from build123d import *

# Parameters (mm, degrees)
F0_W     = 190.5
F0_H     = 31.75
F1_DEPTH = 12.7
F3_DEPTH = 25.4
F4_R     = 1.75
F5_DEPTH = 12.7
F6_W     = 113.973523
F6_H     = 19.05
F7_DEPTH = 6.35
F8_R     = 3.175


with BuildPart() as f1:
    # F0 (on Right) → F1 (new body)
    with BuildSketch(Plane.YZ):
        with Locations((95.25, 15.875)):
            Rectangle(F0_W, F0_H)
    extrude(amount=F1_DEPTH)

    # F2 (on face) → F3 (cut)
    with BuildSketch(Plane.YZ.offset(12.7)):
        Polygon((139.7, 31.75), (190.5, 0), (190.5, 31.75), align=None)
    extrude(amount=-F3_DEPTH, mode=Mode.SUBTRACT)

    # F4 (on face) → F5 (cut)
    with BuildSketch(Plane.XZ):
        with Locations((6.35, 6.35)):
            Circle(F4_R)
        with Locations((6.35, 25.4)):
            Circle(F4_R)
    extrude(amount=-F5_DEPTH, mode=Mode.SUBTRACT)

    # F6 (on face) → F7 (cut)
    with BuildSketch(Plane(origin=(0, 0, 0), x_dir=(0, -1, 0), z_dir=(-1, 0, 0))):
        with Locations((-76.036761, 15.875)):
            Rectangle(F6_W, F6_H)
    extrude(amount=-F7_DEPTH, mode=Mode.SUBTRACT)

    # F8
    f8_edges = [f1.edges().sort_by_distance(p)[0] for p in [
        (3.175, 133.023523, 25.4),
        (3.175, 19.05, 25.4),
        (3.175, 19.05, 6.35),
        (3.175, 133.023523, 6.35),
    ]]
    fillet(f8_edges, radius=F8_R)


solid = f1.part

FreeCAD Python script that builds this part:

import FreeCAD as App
import Part
import Sketcher

V = App.Vector
Q = App.Units.Quantity


def edges_at(feature, points):
    """Names of the edges that pass closest to the given points."""
    edges = feature.Shape.Edges
    near = lambda p: min(range(len(edges)), key=lambda i: edges[i].distToShape(Part.Vertex(*p))[0])
    return sorted({f"Edge{near(p) + 1}" for p in points})

doc = App.newDocument("Part")
body = doc.addObject("PartDesign::Body", "Body")

sketch1 = body.newObject("Sketcher::SketchObject", "Sketch")
sketch1.AttachmentSupport = (doc.getObject("YZ_Plane"), [""])
sketch1.MapMode = "FlatFace"
sketch1.addGeometry(Part.LineSegment(V(0, 32, 0), V(0, 0, 0)), False)
sketch1.addGeometry(Part.LineSegment(V(0, 0, 0), V(190, 0, 0)), False)
sketch1.addGeometry(Part.LineSegment(V(190, 0, 0), V(190, 32, 0)), False)
sketch1.addGeometry(Part.LineSegment(V(190, 32, 0), V(0, 32, 0)), False)
sketch1.addConstraint(Sketcher.Constraint("Coincident", 0, 2, 1, 1))
sketch1.addConstraint(Sketcher.Constraint("Coincident", 1, 2, 2, 1))
sketch1.addConstraint(Sketcher.Constraint("Coincident", 2, 2, 3, 1))
sketch1.addConstraint(Sketcher.Constraint("Coincident", 3, 2, 0, 1))
sketch1.addConstraint(Sketcher.Constraint("Vertical", 0))
sketch1.addConstraint(Sketcher.Constraint("Horizontal", 1))
sketch1.addConstraint(Sketcher.Constraint("Vertical", 2))
sketch1.addConstraint(Sketcher.Constraint("Horizontal", 3))
sketch1.addConstraint(Sketcher.Constraint("Coincident", 0, 2, -1, 1))
sketch1.addConstraint(Sketcher.Constraint("DistanceX", 1, 1, 1, 2, Q("7.5 in")))
sketch1.addConstraint(Sketcher.Constraint("DistanceY", 0, 2, 0, 1, Q("1.25 in")))
pad1 = body.newObject("PartDesign::Pad", "Pad")
pad1.Profile = sketch1
pad1.Length = Q("0.5 in")

sketch2 = body.newObject("Sketcher::SketchObject", "Sketch001")
sketch2.AttachmentSupport = (doc.getObject("YZ_Plane"), [""])
sketch2.MapMode = "FlatFace"
sketch2.AttachmentOffset = App.Placement(V(0, 0, 0.5 * 25.4), App.Rotation())
sketch2.addGeometry(Part.LineSegment(V(140, 32, 0), V(190, 0, 0)), False)
sketch2.addGeometry(Part.LineSegment(V(190, 0, 0), V(190, 32, 0)), False)
sketch2.addGeometry(Part.LineSegment(V(190, 32, 0), V(140, 32, 0)), False)
sketch2.addConstraint(Sketcher.Constraint("Coincident", 0, 2, 1, 1))
sketch2.addConstraint(Sketcher.Constraint("Coincident", 1, 2, 2, 1))
sketch2.addConstraint(Sketcher.Constraint("Coincident", 2, 2, 0, 1))
sketch2.addConstraint(Sketcher.Constraint("Vertical", 1))
sketch2.addConstraint(Sketcher.Constraint("Horizontal", 2))
sketch2.addConstraint(Sketcher.Constraint("PointOnObject", 0, 2, -1))
sketch2.addConstraint(Sketcher.Constraint("DistanceX", 2, 2, 2, 1, Q("2 in")))
sketch2.addConstraint(Sketcher.Constraint("DistanceY", 1, 1, 1, 2, Q("1.25 in")))
sketch2.addConstraint(Sketcher.Constraint("DistanceX", -1, 1, 0, 2, Q("7.5 in")))
pocket1 = body.newObject("PartDesign::Pocket", "Pocket")
pocket1.Profile = sketch2
pocket1.Length = Q("1 in")

sketch3 = body.newObject("Sketcher::SketchObject", "Sketch002")
sketch3.AttachmentSupport = (doc.getObject("XZ_Plane"), [""])
sketch3.MapMode = "FlatFace"
sketch3.addGeometry(Part.Circle(V(6.3, 6.3, 0), V(0, 0, 1), 1.8), False)
sketch3.addGeometry(Part.Circle(V(6.3, 25.4, 0), V(0, 0, 1), 1.8), False)
sketch3.addConstraint(Sketcher.Constraint("Equal", 0, 1))
sketch3.addConstraint(Sketcher.Constraint("Vertical", 0, 3, 1, 3))
sketch3.addConstraint(Sketcher.Constraint("DistanceY", -1, 1, 1, 3, Q("1 in")))
sketch3.addConstraint(Sketcher.Constraint("Diameter", 0, 3.5))
sketch3.addConstraint(Sketcher.Constraint("DistanceX", -1, 1, 0, 3, Q("0.25 in")))
sketch3.addConstraint(Sketcher.Constraint("DistanceY", -1, 1, 0, 3, Q("0.25 in")))
pocket2 = body.newObject("PartDesign::Pocket", "Pocket001")
pocket2.Profile = sketch3
pocket2.Length = Q("0.5 in")

sketch4 = body.newObject("Sketcher::SketchObject", "Sketch003")
sketch4.AttachmentSupport = (doc.getObject("YZ_Plane"), [""])
sketch4.MapMode = "FlatFace"
sketch4.addGeometry(Part.LineSegment(V(133, 25, 0), V(133, 6, 0)), False)
sketch4.addGeometry(Part.LineSegment(V(133, 6, 0), V(19, 6, 0)), False)
sketch4.addGeometry(Part.LineSegment(V(19, 6, 0), V(19, 25, 0)), False)
sketch4.addGeometry(Part.LineSegment(V(19, 25, 0), V(133, 25, 0)), False)
sketch4.addConstraint(Sketcher.Constraint("Coincident", 0, 2, 1, 1))
sketch4.addConstraint(Sketcher.Constraint("Coincident", 1, 2, 2, 1))
sketch4.addConstraint(Sketcher.Constraint("Coincident", 2, 2, 3, 1))
sketch4.addConstraint(Sketcher.Constraint("Coincident", 3, 2, 0, 1))
sketch4.addConstraint(Sketcher.Constraint("Vertical", 0))
sketch4.addConstraint(Sketcher.Constraint("Horizontal", 1))
sketch4.addConstraint(Sketcher.Constraint("Vertical", 2))
sketch4.addConstraint(Sketcher.Constraint("Horizontal", 3))
sketch4.addConstraint(Sketcher.Constraint("DistanceY", -1, 1, 2, 2, Q("1 in")))
sketch4.addConstraint(Sketcher.Constraint("DistanceY", 0, 2, 0, 1, Q("0.75 in")))
sketch4.addConstraint(Sketcher.Constraint("DistanceX", -1, 1, 1, 2, Q("0.75 in")))
sketch4.addConstraint(Sketcher.Constraint("DistanceX", 1, 2, 1, 1, 113.973523))
pocket3 = body.newObject("PartDesign::Pocket", "Pocket002")
pocket3.Profile = sketch4
pocket3.Length = Q("0.25 in")
pocket3.Reversed = True
doc.recompute()

fillet = body.newObject("PartDesign::Fillet", "Fillet")
fillet.Base = (pocket3, edges_at(pocket3, [
    (3.175, 133.024, 25.4),
    (3.175, 19.05, 25.4),
    (3.175, 19.05, 6.35),
    (3.175, 133.024, 6.35),
]))
fillet.Radius = Q("0.125 in")

doc.recompute()
